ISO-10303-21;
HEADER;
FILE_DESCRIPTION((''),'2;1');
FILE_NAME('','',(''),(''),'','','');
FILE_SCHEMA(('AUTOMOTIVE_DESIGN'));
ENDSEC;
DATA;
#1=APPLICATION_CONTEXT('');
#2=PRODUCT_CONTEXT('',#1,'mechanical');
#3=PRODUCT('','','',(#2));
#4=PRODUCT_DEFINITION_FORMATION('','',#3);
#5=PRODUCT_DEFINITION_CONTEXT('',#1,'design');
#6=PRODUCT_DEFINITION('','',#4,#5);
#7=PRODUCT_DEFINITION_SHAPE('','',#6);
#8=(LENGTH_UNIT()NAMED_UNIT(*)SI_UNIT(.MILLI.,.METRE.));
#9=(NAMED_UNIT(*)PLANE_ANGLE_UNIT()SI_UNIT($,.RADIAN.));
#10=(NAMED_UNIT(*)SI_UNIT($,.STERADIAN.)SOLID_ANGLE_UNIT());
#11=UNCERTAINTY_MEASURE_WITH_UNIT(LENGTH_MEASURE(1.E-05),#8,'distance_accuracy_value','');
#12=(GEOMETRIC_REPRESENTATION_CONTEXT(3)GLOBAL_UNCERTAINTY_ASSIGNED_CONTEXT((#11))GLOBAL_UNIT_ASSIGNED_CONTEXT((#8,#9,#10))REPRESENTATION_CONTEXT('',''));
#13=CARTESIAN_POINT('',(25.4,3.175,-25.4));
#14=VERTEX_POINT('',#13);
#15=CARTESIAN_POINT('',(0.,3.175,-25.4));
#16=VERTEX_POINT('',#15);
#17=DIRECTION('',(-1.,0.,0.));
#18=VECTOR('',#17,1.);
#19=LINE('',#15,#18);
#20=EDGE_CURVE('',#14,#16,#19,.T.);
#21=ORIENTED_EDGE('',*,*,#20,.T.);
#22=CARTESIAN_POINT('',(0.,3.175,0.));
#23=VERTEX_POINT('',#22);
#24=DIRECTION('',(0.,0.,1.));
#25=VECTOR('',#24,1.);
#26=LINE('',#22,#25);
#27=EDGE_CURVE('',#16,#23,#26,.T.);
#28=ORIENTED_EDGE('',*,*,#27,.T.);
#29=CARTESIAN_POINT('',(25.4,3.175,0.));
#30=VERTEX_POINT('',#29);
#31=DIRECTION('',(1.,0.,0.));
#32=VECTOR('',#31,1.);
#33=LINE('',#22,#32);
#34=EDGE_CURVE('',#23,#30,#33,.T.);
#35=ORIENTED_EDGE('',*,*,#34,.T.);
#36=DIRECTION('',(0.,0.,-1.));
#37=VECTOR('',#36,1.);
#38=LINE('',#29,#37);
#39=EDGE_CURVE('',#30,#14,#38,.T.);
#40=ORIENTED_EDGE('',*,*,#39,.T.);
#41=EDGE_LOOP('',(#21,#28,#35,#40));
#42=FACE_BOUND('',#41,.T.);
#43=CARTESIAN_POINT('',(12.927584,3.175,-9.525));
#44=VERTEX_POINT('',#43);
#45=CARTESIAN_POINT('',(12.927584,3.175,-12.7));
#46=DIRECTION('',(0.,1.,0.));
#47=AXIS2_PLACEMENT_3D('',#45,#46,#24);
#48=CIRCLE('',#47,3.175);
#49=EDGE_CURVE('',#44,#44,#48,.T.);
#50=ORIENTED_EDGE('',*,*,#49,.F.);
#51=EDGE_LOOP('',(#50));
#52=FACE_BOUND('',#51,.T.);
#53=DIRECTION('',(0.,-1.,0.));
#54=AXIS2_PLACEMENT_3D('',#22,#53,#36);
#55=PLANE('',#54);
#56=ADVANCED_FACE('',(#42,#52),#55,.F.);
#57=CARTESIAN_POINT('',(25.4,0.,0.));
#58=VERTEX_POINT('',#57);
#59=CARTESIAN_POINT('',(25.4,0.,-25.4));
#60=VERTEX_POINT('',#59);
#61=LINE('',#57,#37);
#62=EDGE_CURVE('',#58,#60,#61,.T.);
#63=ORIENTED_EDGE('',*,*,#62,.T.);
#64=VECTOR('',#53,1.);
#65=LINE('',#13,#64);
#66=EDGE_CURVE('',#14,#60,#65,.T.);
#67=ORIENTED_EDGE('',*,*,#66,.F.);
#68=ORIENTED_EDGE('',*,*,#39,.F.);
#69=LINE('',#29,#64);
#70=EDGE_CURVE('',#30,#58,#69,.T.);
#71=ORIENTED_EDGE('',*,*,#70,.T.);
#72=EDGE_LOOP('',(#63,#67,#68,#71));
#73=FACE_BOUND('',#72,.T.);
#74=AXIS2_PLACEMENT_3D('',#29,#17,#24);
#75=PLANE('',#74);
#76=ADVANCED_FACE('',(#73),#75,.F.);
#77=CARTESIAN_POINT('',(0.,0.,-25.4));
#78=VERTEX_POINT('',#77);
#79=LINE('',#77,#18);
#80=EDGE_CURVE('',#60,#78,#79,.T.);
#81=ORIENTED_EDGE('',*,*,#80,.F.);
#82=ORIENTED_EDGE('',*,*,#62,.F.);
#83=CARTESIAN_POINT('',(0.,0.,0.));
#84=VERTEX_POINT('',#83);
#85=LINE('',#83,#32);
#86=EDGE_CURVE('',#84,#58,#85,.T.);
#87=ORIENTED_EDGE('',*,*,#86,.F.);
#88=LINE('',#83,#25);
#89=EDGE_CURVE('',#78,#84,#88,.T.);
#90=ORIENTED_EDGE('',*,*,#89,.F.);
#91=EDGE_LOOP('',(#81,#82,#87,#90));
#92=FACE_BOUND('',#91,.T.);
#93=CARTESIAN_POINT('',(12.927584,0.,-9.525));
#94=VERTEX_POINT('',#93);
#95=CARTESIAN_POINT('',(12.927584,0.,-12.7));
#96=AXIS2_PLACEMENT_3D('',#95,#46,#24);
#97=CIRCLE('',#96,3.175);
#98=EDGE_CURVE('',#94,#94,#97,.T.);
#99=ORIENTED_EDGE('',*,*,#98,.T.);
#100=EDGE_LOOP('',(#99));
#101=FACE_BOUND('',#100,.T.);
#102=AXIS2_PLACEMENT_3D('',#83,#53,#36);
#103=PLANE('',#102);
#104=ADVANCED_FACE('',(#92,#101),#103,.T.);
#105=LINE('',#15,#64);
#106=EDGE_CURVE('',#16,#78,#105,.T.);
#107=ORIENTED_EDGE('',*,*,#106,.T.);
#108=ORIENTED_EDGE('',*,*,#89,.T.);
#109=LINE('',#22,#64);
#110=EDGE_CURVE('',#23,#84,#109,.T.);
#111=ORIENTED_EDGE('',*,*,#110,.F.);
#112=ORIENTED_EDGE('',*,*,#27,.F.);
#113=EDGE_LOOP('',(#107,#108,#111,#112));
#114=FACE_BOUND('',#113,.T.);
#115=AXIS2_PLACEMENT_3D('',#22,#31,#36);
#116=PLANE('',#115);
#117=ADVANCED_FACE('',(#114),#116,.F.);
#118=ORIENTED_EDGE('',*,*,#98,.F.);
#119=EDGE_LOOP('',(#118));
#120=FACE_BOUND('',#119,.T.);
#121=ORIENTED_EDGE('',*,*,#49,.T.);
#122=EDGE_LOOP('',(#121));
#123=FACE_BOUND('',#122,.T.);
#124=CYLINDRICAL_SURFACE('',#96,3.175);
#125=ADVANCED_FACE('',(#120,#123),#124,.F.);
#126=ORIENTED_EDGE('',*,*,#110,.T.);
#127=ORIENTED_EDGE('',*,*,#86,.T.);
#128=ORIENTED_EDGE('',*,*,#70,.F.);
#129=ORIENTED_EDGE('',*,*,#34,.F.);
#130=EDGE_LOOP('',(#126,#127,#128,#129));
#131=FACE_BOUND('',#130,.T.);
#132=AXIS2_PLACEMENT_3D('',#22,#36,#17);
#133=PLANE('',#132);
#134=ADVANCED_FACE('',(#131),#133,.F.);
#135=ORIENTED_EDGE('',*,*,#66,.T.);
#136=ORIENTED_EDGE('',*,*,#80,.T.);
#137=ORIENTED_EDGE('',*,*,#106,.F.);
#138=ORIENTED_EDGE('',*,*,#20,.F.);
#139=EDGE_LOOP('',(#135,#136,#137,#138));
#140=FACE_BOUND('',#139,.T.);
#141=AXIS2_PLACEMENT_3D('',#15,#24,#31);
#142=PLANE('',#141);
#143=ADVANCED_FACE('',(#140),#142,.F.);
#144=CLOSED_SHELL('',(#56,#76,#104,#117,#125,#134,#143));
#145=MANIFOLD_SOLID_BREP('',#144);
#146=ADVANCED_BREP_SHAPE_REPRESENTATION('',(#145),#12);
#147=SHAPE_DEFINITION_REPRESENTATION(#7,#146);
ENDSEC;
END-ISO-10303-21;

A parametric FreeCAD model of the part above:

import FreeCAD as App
import Part
import Sketcher
from FreeCAD import Vector
Q = App.Units.Quantity

doc = App.newDocument("Part")
body = doc.addObject("PartDesign::Body", "Body")

sketch1 = body.newObject("Sketcher::SketchObject", "Sketch")
sketch1.AttachmentSupport = (doc.getObject("XZ_Plane"), [""])
sketch1.MapMode = "FlatFace"
sketch1.addGeometry([
    Part.LineSegment(Vector(0, -25.4, 0), Vector(0, 0, 0)),
    Part.LineSegment(Vector(0, 0, 0), Vector(25.4, 0, 0)),
    Part.LineSegment(Vector(25.4, 0, 0), Vector(25.4, -25.4, 0)),
    Part.LineSegment(Vector(25.4, -25.4, 0), Vector(0, -25.4, 0)),
], False)
sketch1.addConstraint([
    Sketcher.Constraint("Coincident", 0, 2, 1, 1),
    Sketcher.Constraint("Coincident", 1, 2, 2, 1),
    Sketcher.Constraint("Coincident", 2, 2, 3, 1),
    Sketcher.Constraint("Coincident", 3, 2, 0, 1),
    Sketcher.Constraint("Vertical", 0),
    Sketcher.Constraint("Horizontal", 1),
    Sketcher.Constraint("Vertical", 2),
    Sketcher.Constraint("Horizontal", 3),
    Sketcher.Constraint("Coincident", 0, 2, -1, 1),
    Sketcher.Constraint("Equal", 3, 0),
    Sketcher.Constraint("DistanceX", 1, 1, 1, 2, Q("1 in")),
])
pad1 = body.newObject("PartDesign::Pad", "Pad")
pad1.Profile = sketch1
pad1.Length = Q("0.125 in")
pad1.Reversed = True

sketch2 = body.newObject("Sketcher::SketchObject", "Sketch001")
sketch2.AttachmentSupport = (doc.getObject("XZ_Plane"), [""])
sketch2.MapMode = "FlatFace"
sketch2.AttachmentOffset = App.Placement(Vector(0, 0, -0.125 * 25.4), App.Rotation())
sketch2.addGeometry(Part.Circle(Vector(12.927584, -12.7, 0), Vector(0, 0, 1), 3.175), False)
sketch2.addConstraint([
    Sketcher.Constraint("Diameter", 0, Q("0.25 in")),
    Sketcher.Constraint("DistanceY", 0, 3, -1, 1, Q("0.5 in")),
    Sketcher.Constraint("DistanceX", -1, 1, 0, 3, Q("12.927584 mm")),
])
pocket1 = body.newObject("PartDesign::Pocket", "Pocket")
pocket1.Profile = sketch2
pocket1.Type = "ThroughAll"
pocket1.Reversed = True

doc.recompute()
